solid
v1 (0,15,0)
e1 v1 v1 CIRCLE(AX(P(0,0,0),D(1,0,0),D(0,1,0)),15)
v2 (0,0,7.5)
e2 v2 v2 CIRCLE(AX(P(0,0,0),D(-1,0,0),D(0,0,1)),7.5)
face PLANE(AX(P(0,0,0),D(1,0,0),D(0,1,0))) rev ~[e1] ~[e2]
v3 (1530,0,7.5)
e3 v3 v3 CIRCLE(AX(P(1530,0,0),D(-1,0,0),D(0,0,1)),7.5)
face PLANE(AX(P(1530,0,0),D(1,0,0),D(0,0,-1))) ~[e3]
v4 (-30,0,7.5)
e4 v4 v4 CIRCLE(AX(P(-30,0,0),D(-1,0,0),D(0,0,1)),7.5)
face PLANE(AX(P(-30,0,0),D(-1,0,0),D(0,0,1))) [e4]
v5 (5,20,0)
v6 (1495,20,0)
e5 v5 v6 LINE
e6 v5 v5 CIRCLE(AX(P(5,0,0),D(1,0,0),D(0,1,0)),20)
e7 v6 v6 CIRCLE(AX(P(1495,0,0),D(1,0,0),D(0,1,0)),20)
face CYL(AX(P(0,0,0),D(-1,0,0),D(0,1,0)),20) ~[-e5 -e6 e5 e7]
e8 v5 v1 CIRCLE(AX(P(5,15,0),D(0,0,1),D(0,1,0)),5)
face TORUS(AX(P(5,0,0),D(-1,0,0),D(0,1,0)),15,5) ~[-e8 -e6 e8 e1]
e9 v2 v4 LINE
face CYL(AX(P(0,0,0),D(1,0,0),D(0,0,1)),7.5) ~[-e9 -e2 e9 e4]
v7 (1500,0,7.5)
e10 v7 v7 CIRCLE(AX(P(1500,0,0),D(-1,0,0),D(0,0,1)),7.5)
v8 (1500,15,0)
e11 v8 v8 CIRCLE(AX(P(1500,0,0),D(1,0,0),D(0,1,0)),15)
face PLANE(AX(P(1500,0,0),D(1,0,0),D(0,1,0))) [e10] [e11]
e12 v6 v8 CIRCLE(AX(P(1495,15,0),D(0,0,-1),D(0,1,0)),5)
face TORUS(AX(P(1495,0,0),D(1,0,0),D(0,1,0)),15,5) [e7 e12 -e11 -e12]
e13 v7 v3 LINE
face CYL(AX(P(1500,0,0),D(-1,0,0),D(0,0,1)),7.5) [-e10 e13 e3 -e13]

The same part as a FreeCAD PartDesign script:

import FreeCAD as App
import Part
import Sketcher
from FreeCAD import Vector


def edges_at(feature, points):
    """Names of the edges that pass closest to the given points."""
    edges = feature.Shape.Edges
    near = lambda p: min(range(len(edges)), key=lambda i: edges[i].distToShape(Part.Vertex(*p))[0])
    return sorted({f"Edge{near(p) + 1}" for p in points})

doc = App.newDocument("Part")
body = doc.addObject("PartDesign::Body", "Body")

# Sketch on YZ plane
sketch1 = doc.addObject("Sketcher::SketchObject", "Sketch")
body.addObject(sketch1)
sketch1.AttachmentSupport = (doc.YZ_Plane, [""])
sketch1.MapMode = "FlatFace"
sketch1.addGeometry(Part.Circle(Vector(0, 0, 0), Vector(0, 0, 1), 20), False)
sketch1.addConstraint(Sketcher.Constraint("Coincident", 0, 3, -1, 1))
sketch1.addConstraint(Sketcher.Constraint("Diameter", 0, 40.0))
pad1 = doc.addObject("PartDesign::Pad", "Pad")
body.addObject(pad1)
pad1.Profile = sketch1
pad1.Length = 1500
doc.recompute()

fillet = doc.addObject("PartDesign::Fillet", "Fillet")
body.addObject(fillet)
fillet.Base = (pad1, edges_at(pad1, [(0, -20, 0)]))
fillet.Radius = 5

# Sketch on YZ plane
sketch2 = doc.addObject("Sketcher::SketchObject", "Sketch001")
body.addObject(sketch2)
sketch2.AttachmentSupport = (doc.YZ_Plane, [""])
sketch2.MapMode = "FlatFace"
sketch2.addGeometry(Part.Circle(Vector(0, 0, 0), Vector(0, 0, 1), 8), False)
sketch2.addConstraint(Sketcher.Constraint("Coincident", 0, 3, -1, 1))
sketch2.addConstraint(Sketcher.Constraint("Diameter", 0, 15.0))
pad2 = doc.addObject("PartDesign::Pad", "Pad001")
body.addObject(pad2)
pad2.Profile = sketch2
pad2.Length = 30
pad2.Reversed = True
doc.recompute()

datumplane = doc.addObject("PartDesign::Plane", "DatumPlane")
body.addObject(datumplane)
datumplane.AttachmentSupport = (doc.YZ_Plane, [""])
datumplane.MapMode = "FlatFace"
datumplane.AttachmentOffset = App.Placement(Vector(0, 0, 750), App.Rotation())
mirrored = doc.addObject("PartDesign::Mirrored", "Mirrored")
body.addObject(mirrored)
mirrored.Originals = [fillet, pad2]
mirrored.MirrorPlane = (datumplane, [""])
body.Tip = mirrored

doc.recompute()
